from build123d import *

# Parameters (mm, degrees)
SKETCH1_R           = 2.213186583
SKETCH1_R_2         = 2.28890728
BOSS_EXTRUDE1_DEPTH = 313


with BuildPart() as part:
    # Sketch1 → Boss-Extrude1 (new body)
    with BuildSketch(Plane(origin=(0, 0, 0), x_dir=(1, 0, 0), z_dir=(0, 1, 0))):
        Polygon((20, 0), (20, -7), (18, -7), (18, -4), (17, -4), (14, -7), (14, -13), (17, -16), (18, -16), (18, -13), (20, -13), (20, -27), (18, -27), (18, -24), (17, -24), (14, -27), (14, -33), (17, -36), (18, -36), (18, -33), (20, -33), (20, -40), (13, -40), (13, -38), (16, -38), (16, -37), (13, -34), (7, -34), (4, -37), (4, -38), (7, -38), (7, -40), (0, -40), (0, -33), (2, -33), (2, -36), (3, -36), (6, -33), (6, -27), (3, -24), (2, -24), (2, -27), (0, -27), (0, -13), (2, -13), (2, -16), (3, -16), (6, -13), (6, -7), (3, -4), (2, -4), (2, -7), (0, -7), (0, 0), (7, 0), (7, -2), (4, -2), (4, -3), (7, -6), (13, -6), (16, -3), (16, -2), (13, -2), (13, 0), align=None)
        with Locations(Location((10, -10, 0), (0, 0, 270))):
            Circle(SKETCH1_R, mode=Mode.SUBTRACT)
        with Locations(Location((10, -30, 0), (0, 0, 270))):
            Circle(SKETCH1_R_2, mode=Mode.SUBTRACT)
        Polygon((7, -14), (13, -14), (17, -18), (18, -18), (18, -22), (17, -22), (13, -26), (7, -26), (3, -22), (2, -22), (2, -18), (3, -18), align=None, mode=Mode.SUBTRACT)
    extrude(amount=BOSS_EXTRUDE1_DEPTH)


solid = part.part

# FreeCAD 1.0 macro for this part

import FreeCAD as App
import Part
import Sketcher
from FreeCAD import Vector

doc = App.newDocument("Part")
body = doc.addObject("PartDesign::Body", "Body")

sketch1 = body.newObject("Sketcher::SketchObject", "Sketch")
sketch1.AttachmentSupport = (doc.getObject("XZ_Plane"), [""])
sketch1.MapMode = "FlatFace"
sketch1.addGeometry(Part.LineSegment(Vector(20, 7, 0), Vector(20, 0, 0)), False)
sketch1.addGeometry(Part.LineSegment(Vector(20, 0, 0), Vector(13, 0, 0)), False)
sketch1.addGeometry(Part.LineSegment(Vector(13, 0, 0), Vector(13, 2, 0)), False)
sketch1.addGeometry(Part.LineSegment(Vector(13, 2, 0), Vector(16, 2, 0)), False)
sketch1.addGeometry(Part.LineSegment(Vector(16, 2, 0), Vector(16, 3, 0)), False)
sketch1.addGeometry(Part.LineSegment(Vector(16, 3, 0), Vector(13, 6, 0)), False)
sketch1.addGeometry(Part.LineSegment(Vector(13, 6, 0), Vector(7, 6, 0)), False)
sketch1.addGeometry(Part.LineSegment(Vector(7, 6, 0), Vector(4, 3, 0)), False)
sketch1.addGeometry(Part.LineSegment(Vector(4, 3, 0), Vector(4, 2, 0)), False)
sketch1.addGeometry(Part.LineSegment(Vector(4, 2, 0), Vector(7, 2, 0)), False)
sketch1.addGeometry(Part.LineSegment(Vector(7, 2, 0), Vector(7, 0, 0)), False)
sketch1.addGeometry(Part.LineSegment(Vector(7, 0, 0), Vector(0, 0, 0)), False)
sketch1.addGeometry(Part.LineSegment(Vector(0, 0, 0), Vector(0, 7, 0)), False)
sketch1.addGeometry(Part.LineSegment(Vector(0, 7, 0), Vector(2, 7, 0)), False)
sketch1.addGeometry(Part.LineSegment(Vector(2, 7, 0), Vector(2, 4, 0)), False)
sketch1.addGeometry(Part.LineSegment(Vector(2, 4, 0), Vector(3, 4, 0)), False)
sketch1.addGeometry(Part.LineSegment(Vector(3, 4, 0), Vector(6, 7, 0)), False)
sketch1.addGeometry(Part.LineSegment(Vector(6, 7, 0), Vector(6, 13, 0)), False)
sketch1.addGeometry(Part.LineSegment(Vector(6, 13, 0), Vector(3, 16, 0)), False)
sketch1.addGeometry(Part.LineSegment(Vector(3, 16, 0), Vector(2, 16, 0)), False)
sketch1.addGeometry(Part.LineSegment(Vector(2, 16, 0), Vector(2, 13, 0)), False)
sketch1.addGeometry(Part.LineSegment(Vector(2, 13, 0), Vector(0, 13, 0)), False)
sketch1.addGeometry(Part.LineSegment(Vector(0, 13, 0), Vector(0, 27, 0)), False)
sketch1.addGeometry(Part.LineSegment(Vector(0, 27, 0), Vector(2, 27, 0)), False)
sketch1.addGeometry(Part.LineSegment(Vector(2, 27, 0), Vector(2, 24, 0)), False)
sketch1.addGeometry(Part.LineSegment(Vector(2, 24, 0), Vector(3, 24, 0)), False)
sketch1.addGeometry(Part.LineSegment(Vector(3, 24, 0), Vector(6, 27, 0)), False)
sketch1.addGeometry(Part.LineSegment(Vector(6, 27, 0), Vector(6, 33, 0)), False)
sketch1.addGeometry(Part.LineSegment(Vector(6, 33, 0), Vector(3, 36, 0)), False)
sketch1.addGeometry(Part.LineSegment(Vector(3, 36, 0), Vector(2, 36, 0)), False)
sketch1.addGeometry(Part.LineSegment(Vector(2, 36, 0), Vector(2, 33, 0)), False)
sketch1.addGeometry(Part.LineSegment(Vector(2, 33, 0), Vector(0, 33, 0)), False)
sketch1.addGeometry(Part.LineSegment(Vector(0, 33, 0), Vector(0, 40, 0)), False)
sketch1.addGeometry(Part.LineSegment(Vector(0, 40, 0), Vector(7, 40, 0)), False)
sketch1.addGeometry(Part.LineSegment(Vector(7, 40, 0), Vector(7, 38, 0)), False)
sketch1.addGeometry(Part.LineSegment(Vector(7, 38, 0), Vector(4, 38, 0)), False)
sketch1.addGeometry(Part.LineSegment(Vector(4, 38, 0), Vector(4, 37, 0)), False)
sketch1.addGeometry(Part.LineSegment(Vector(4, 37, 0), Vector(7, 34, 0)), False)
sketch1.addGeometry(Part.LineSegment(Vector(7, 34, 0), Vector(13, 34, 0)), False)
sketch1.addGeometry(Part.LineSegment(Vector(13, 34, 0), Vector(16, 37, 0)), False)
sketch1.addGeometry(Part.LineSegment(Vector(16, 37, 0), Vector(16, 38, 0)), False)
sketch1.addGeometry(Part.LineSegment(Vector(16, 38, 0), Vector(13, 38, 0)), False)
sketch1.addGeometry(Part.LineSegment(Vector(13, 38, 0), Vector(13, 40, 0)), False)
sketch1.addGeometry(Part.LineSegment(Vector(13, 40, 0), Vector(20, 40, 0)), False)
sketch1.addGeometry(Part.LineSegment(Vector(20, 40, 0), Vector(20, 33, 0)), False)
sketch1.addGeometry(Part.LineSegment(Vector(20, 33, 0), Vector(18, 33, 0)), False)
sketch1.addGeometry(Part.LineSegment(Vector(18, 33, 0), Vector(18, 36, 0)), False)
sketch1.addGeometry(Part.LineSegment(Vector(18, 36, 0), Vector(17, 36, 0)), False)
sketch1.addGeometry(Part.LineSegment(Vector(17, 36, 0), Vector(14, 33, 0)), False)
sketch1.addGeometry(Part.LineSegment(Vector(14, 33, 0), Vector(14, 27, 0)), False)
sketch1.addGeometry(Part.LineSegment(Vector(14, 27, 0), Vector(17, 24, 0)), False)
sketch1.addGeometry(Part.LineSegment(Vector(17, 24, 0), Vector(18, 24, 0)), False)
sketch1.addGeometry(Part.LineSegment(Vector(18, 24, 0), Vector(18, 27, 0)), False)
sketch1.addGeometry(Part.LineSegment(Vector(18, 27, 0), Vector(20, 27, 0)), False)
sketch1.addGeometry(Part.LineSegment(Vector(20, 27, 0), Vector(20, 13, 0)), False)
sketch1.addGeometry(Part.LineSegment(Vector(20, 13, 0), Vector(18, 13, 0)), False)
sketch1.addGeometry(Part.LineSegment(Vector(18, 13, 0), Vector(18, 16, 0)), False)
sketch1.addGeometry(Part.LineSegment(Vector(18, 16, 0), Vector(17, 16, 0)), False)
sketch1.addGeometry(Part.LineSegment(Vector(17, 16, 0), Vector(14, 13, 0)), False)
sketch1.addGeometry(Part.LineSegment(Vector(14, 13, 0), Vector(14, 7, 0)), False)
sketch1.addGeometry(Part.LineSegment(Vector(14, 7, 0), Vector(17, 4, 0)), False)
sketch1.addGeometry(Part.LineSegment(Vector(17, 4, 0), Vector(18, 4, 0)), False)
sketch1.addGeometry(Part.LineSegment(Vector(18, 4, 0), Vector(18, 7, 0)), False)
sketch1.addGeometry(Part.LineSegment(Vector(18, 7, 0), Vector(20, 7, 0)), False)
sketch1.addGeometry(Part.Circle(Vector(10, 30, 0), Vector(0, 0, 1), 2.3), False)
sketch1.addGeometry(Part.LineSegment(Vector(7, 14, 0), Vector(13, 14, 0)), False)
sketch1.addGeometry(Part.LineSegment(Vector(13, 14, 0), Vector(17, 18, 0)), False)
sketch1.addGeometry(Part.LineSegment(Vector(17, 18, 0), Vector(18, 18, 0)), False)
sketch1.addGeometry(Part.LineSegment(Vector(18, 18, 0), Vector(18, 22, 0)), False)
sketch1.addGeometry(Part.LineSegment(Vector(18, 22, 0), Vector(17, 22, 0)), False)
sketch1.addGeometry(Part.LineSegment(Vector(17, 22, 0), Vector(13, 26, 0)), False)
sketch1.addGeometry(Part.LineSegment(Vector(13, 26, 0), Vector(7, 26, 0)), False)
sketch1.addGeometry(Part.LineSegment(Vector(7, 26, 0), Vector(3, 22, 0)), False)
sketch1.addGeometry(Part.LineSegment(Vector(3, 22, 0), Vector(2, 22, 0)), False)
sketch1.addGeometry(Part.LineSegment(Vector(2, 22, 0), Vector(2, 18, 0)), False)
sketch1.addGeometry(Part.LineSegment(Vector(2, 18, 0), Vector(3, 18, 0)), False)
sketch1.addGeometry(Part.LineSegment(Vector(3, 18, 0), Vector(7, 14, 0)), False)
sketch1.addGeometry(Part.Circle(Vector(10, 10, 0), Vector(0, 0, 1), 2.2), False)
sketch1.addConstraint(Sketcher.Constraint("Coincident", 0, 2, 1, 1))
sketch1.addConstraint(Sketcher.Constraint("Coincident", 1, 2, 2, 1))
sketch1.addConstraint(Sketcher.Constraint("Coincident", 2, 2, 3, 1))
sketch1.addConstraint(Sketcher.Constraint("Coincident", 3, 2, 4, 1))
sketch1.addConstraint(Sketcher.Constraint("Coincident", 4, 2, 5, 1))
sketch1.addConstraint(Sketcher.Constraint("Coincident", 5, 2, 6, 1))
sketch1.addConstraint(Sketcher.Constraint("Coincident", 6, 2, 7, 1))
sketch1.addConstraint(Sketcher.Constraint("Coincident", 7, 2, 8, 1))
sketch1.addConstraint(Sketcher.Constraint("Coincident", 8, 2, 9, 1))
sketch1.addConstraint(Sketcher.Constraint("Coincident", 9, 2, 10, 1))
sketch1.addConstraint(Sketcher.Constraint("Coincident", 10, 2, 11, 1))
sketch1.addConstraint(Sketcher.Constraint("Coincident", 11, 2, 12, 1))
sketch1.addConstraint(Sketcher.Constraint("Coincident", 12, 2, 13, 1))
sketch1.addConstraint(Sketcher.Constraint("Coincident", 13, 2, 14, 1))
sketch1.addConstraint(Sketcher.Constraint("Coincident", 14, 2, 15, 1))
sketch1.addConstraint(Sketcher.Constraint("Coincident", 15, 2, 16, 1))
sketch1.addConstraint(Sketcher.Constraint("Coincident", 16, 2, 17, 1))
sketch1.addConstraint(Sketcher.Constraint("Coincident", 17, 2, 18, 1))
sketch1.addConstraint(Sketcher.Constraint("Coincident", 18, 2, 19, 1))
sketch1.addConstraint(Sketcher.Constraint("Coincident", 19, 2, 20, 1))
sketch1.addConstraint(Sketcher.Constraint("Coincident", 20, 2, 21, 1))
sketch1.addConstraint(Sketcher.Constraint("Coincident", 21, 2, 22, 1))
sketch1.addConstraint(Sketcher.Constraint("Coincident", 22, 2, 23, 1))
sketch1.addConstraint(Sketcher.Constraint("Coincident", 23, 2, 24, 1))
sketch1.addConstraint(Sketcher.Constraint("Coincident", 24, 2, 25, 1))
sketch1.addConstraint(Sketcher.Constraint("Coincident", 25, 2, 26, 1))
sketch1.addConstraint(Sketcher.Constraint("Coincident", 26, 2, 27, 1))
sketch1.addConstraint(Sketcher.Constraint("Coincident", 27, 2, 28, 1))
sketch1.addConstraint(Sketcher.Constraint("Coincident", 28, 2, 29, 1))
sketch1.addConstraint(Sketcher.Constraint("Coincident", 29, 2, 30, 1))
sketch1.addConstraint(Sketcher.Constraint("Coincident", 30, 2, 31, 1))
sketch1.addConstraint(Sketcher.Constraint("Coincident", 31, 2, 32, 1))
sketch1.addConstraint(Sketcher.Constraint("Coincident", 32, 2, 33, 1))
sketch1.addConstraint(Sketcher.Constraint("Coincident", 33, 2, 34, 1))
sketch1.addConstraint(Sketcher.Constraint("Coincident", 34, 2, 35, 1))
sketch1.addConstraint(Sketcher.Constraint("Coincident", 35, 2, 36, 1))
sketch1.addConstraint(Sketcher.Constraint("Coincident", 36, 2, 37, 1))
sketch1.addConstraint(Sketcher.Constraint("Coincident", 37, 2, 38, 1))
sketch1.addConstraint(Sketcher.Constraint("Coincident", 38, 2, 39, 1))
sketch1.addConstraint(Sketcher.Constraint("Coincident", 39, 2, 40, 1))
sketch1.addConstraint(Sketcher.Constraint("Coincident", 40, 2, 41, 1))
sketch1.addConstraint(Sketcher.Constraint("Coincident", 41, 2, 42, 1))
sketch1.addConstraint(Sketcher.Constraint("Coincident", 42, 2, 43, 1))
sketch1.addConstraint(Sketcher.Constraint("Coincident", 43, 2, 44, 1))
sketch1.addConstraint(Sketcher.Constraint("Coincident", 44, 2, 45, 1))
sketch1.addConstraint(Sketcher.Constraint("Coincident", 45, 2, 46, 1))
sketch1.addConstraint(Sketcher.Constraint("Coincident", 46, 2, 47, 1))
sketch1.addConstraint(Sketcher.Constraint("Coincident", 47, 2, 48, 1))
sketch1.addConstraint(Sketcher.Constraint("Coincident", 48, 2, 49, 1))
sketch1.addConstraint(Sketcher.Constraint("Coincident", 49, 2, 50, 1))
sketch1.addConstraint(Sketcher.Constraint("Coincident", 50, 2, 51, 1))
sketch1.addConstraint(Sketcher.Constraint("Coincident", 51, 2, 52, 1))
sketch1.addConstraint(Sketcher.Constraint("Coincident", 52, 2, 53, 1))
sketch1.addConstraint(Sketcher.Constraint("Coincident", 53, 2, 54, 1))
sketch1.addConstraint(Sketcher.Constraint("Coincident", 54, 2, 55, 1))
sketch1.addConstraint(Sketcher.Constraint("Coincident", 55, 2, 56, 1))
sketch1.addConstraint(Sketcher.Constraint("Coincident", 56, 2, 57, 1))
sketch1.addConstraint(Sketcher.Constraint("Coincident", 57, 2, 58, 1))
sketch1.addConstraint(Sketcher.Constraint("Coincident", 58, 2, 59, 1))
sketch1.addConstraint(Sketcher.Constraint("Coincident", 59, 2, 60, 1))
sketch1.addConstraint(Sketcher.Constraint("Coincident", 60, 2, 61, 1))
sketch1.addConstraint(Sketcher.Constraint("Coincident", 61, 2, 62, 1))
sketch1.addConstraint(Sketcher.Constraint("Coincident", 62, 2, 63, 1))
sketch1.addConstraint(Sketcher.Constraint("Coincident", 63, 2, 0, 1))
sketch1.addConstraint(Sketcher.Constraint("Coincident", 65, 2, 66, 1))
sketch1.addConstraint(Sketcher.Constraint("Coincident", 66, 2, 67, 1))
sketch1.addConstraint(Sketcher.Constraint("Coincident", 67, 2, 68, 1))
sketch1.addConstraint(Sketcher.Constraint("Coincident", 68, 2, 69, 1))
sketch1.addConstraint(Sketcher.Constraint("Coincident", 69, 2, 70, 1))
sketch1.addConstraint(Sketcher.Constraint("Coincident", 70, 2, 71, 1))
sketch1.addConstraint(Sketcher.Constraint("Coincident", 71, 2, 72, 1))
sketch1.addConstraint(Sketcher.Constraint("Coincident", 72, 2, 73, 1))
sketch1.addConstraint(Sketcher.Constraint("Coincident", 73, 2, 74, 1))
sketch1.addConstraint(Sketcher.Constraint("Coincident", 74, 2, 75, 1))
sketch1.addConstraint(Sketcher.Constraint("Coincident", 75, 2, 76, 1))
sketch1.addConstraint(Sketcher.Constraint("Coincident", 76, 2, 65, 1))
sketch1.addConstraint(Sketcher.Constraint("Vertical", 0))
sketch1.addConstraint(Sketcher.Constraint("Horizontal", 1))
sketch1.addConstraint(Sketcher.Constraint("Vertical", 2))
sketch1.addConstraint(Sketcher.Constraint("Horizontal", 3))
sketch1.addConstraint(Sketcher.Constraint("Vertical", 4))
sketch1.addConstraint(Sketcher.Constraint("Horizontal", 6))
sketch1.addConstraint(Sketcher.Constraint("Vertical", 8))
sketch1.addConstraint(Sketcher.Constraint("Horizontal", 9))
sketch1.addConstraint(Sketcher.Constraint("Vertical", 10))
sketch1.addConstraint(Sketcher.Constraint("Horizontal", 11))
sketch1.addConstraint(Sketcher.Constraint("Vertical", 12))
sketch1.addConstraint(Sketcher.Constraint("Horizontal", 13))
sketch1.addConstraint(Sketcher.Constraint("Vertical", 14))
sketch1.addConstraint(Sketcher.Constraint("Horizontal", 15))
sketch1.addConstraint(Sketcher.Constraint("Vertical", 17))
sketch1.addConstraint(Sketcher.Constraint("Horizontal", 19))
sketch1.addConstraint(Sketcher.Constraint("Vertical", 20))
sketch1.addConstraint(Sketcher.Constraint("Horizontal", 21))
sketch1.addConstraint(Sketcher.Constraint("Vertical", 22))
sketch1.addConstraint(Sketcher.Constraint("Horizontal", 23))
sketch1.addConstraint(Sketcher.Constraint("Vertical", 24))
sketch1.addConstraint(Sketcher.Constraint("Horizontal", 25))
sketch1.addConstraint(Sketcher.Constraint("Vertical", 27))
sketch1.addConstraint(Sketcher.Constraint("Horizontal", 29))
sketch1.addConstraint(Sketcher.Constraint("Vertical", 30))
sketch1.addConstraint(Sketcher.Constraint("Horizontal", 31))
sketch1.addConstraint(Sketcher.Constraint("Vertical", 32))
sketch1.addConstraint(Sketcher.Constraint("Horizontal", 33))
sketch1.addConstraint(Sketcher.Constraint("Vertical", 34))
sketch1.addConstraint(Sketcher.Constraint("Horizontal", 35))
sketch1.addConstraint(Sketcher.Constraint("Vertical", 36))
sketch1.addConstraint(Sketcher.Constraint("Horizontal", 38))
sketch1.addConstraint(Sketcher.Constraint("Vertical", 40))
sketch1.addConstraint(Sketcher.Constraint("Horizontal", 41))
sketch1.addConstraint(Sketcher.Constraint("Vertical", 42))
sketch1.addConstraint(Sketcher.Constraint("Horizontal", 43))
sketch1.addConstraint(Sketcher.Constraint("Vertical", 44))
sketch1.addConstraint(Sketcher.Constraint("Horizontal", 45))
sketch1.addConstraint(Sketcher.Constraint("Vertical", 46))
sketch1.addConstraint(Sketcher.Constraint("Horizontal", 47))
sketch1.addConstraint(Sketcher.Constraint("Vertical", 49))
sketch1.addConstraint(Sketcher.Constraint("Horizontal", 51))
sketch1.addConstraint(Sketcher.Constraint("Vertical", 52))
sketch1.addConstraint(Sketcher.Constraint("Horizontal", 53))
sketch1.addConstraint(Sketcher.Constraint("Vertical", 54))
sketch1.addConstraint(Sketcher.Constraint("Horizontal", 55))
sketch1.addConstraint(Sketcher.Constraint("Vertical", 56))
sketch1.addConstraint(Sketcher.Constraint("Horizontal", 57))
sketch1.addConstraint(Sketcher.Constraint("Vertical", 59))
sketch1.addConstraint(Sketcher.Constraint("Horizontal", 61))
sketch1.addConstraint(Sketcher.Constraint("Vertical", 62))
sketch1.addConstraint(Sketcher.Constraint("Horizontal", 63))
sketch1.addConstraint(Sketcher.Constraint("Horizontal", 65))
sketch1.addConstraint(Sketcher.Constraint("Horizontal", 67))
sketch1.addConstraint(Sketcher.Constraint("Vertical", 68))
sketch1.addConstraint(Sketcher.Constraint("Horizontal", 69))
sketch1.addConstraint(Sketcher.Constraint("Horizontal", 71))
sketch1.addConstraint(Sketcher.Constraint("Horizontal", 73))
sketch1.addConstraint(Sketcher.Constraint("Vertical", 74))
sketch1.addConstraint(Sketcher.Constraint("Horizontal", 75))
sketch1.addConstraint(Sketcher.Constraint("Coincident", 11, 2, -1, 1))
sketch1.addConstraint(Sketcher.Constraint("PointOnObject", 0, 2, -1))
sketch1.addConstraint(Sketcher.Constraint("PointOnObject", 21, 2, -2))
sketch1.addConstraint(Sketcher.Constraint("PointOnObject", 31, 2, -2))
sketch1.addConstraint(Sketcher.Constraint("Perpendicular", 5, 7))
sketch1.addConstraint(Sketcher.Constraint("Parallel", 7, 16))
sketch1.addConstraint(Sketcher.Constraint("Perpendicular", 16, 18))
sketch1.addConstraint(Sketcher.Constraint("Perpendicular", 18, 26))
sketch1.addConstraint(Sketcher.Constraint("Perpendicular", 26, 28))
sketch1.addConstraint(Sketcher.Constraint("Parallel", 28, 37))
sketch1.addConstraint(Sketcher.Constraint("Perpendicular", 37, 39))
sketch1.addConstraint(Sketcher.Constraint("Parallel", 39, 48))
sketch1.addConstraint(Sketcher.Constraint("Perpendicular", 48, 50))
sketch1.addConstraint(Sketcher.Constraint("Perpendicular", 50, 58))
sketch1.addConstraint(Sketcher.Constraint("Perpendicular", 58, 60))
sketch1.addConstraint(Sketcher.Constraint("Perpendicular", 60, 66))
sketch1.addConstraint(Sketcher.Constraint("Perpendicular", 66, 70))
sketch1.addConstraint(Sketcher.Constraint("Perpendicular", 70, 72))
sketch1.addConstraint(Sketcher.Constraint("Perpendicular", 72, 76))
sketch1.addConstraint(Sketcher.Constraint("Horizontal", 4, 2, 7, 2))
sketch1.addConstraint(Sketcher.Constraint("Horizontal", 3, 2, 8, 2))
sketch1.addConstraint(Sketcher.Constraint("Horizontal", 13, 2, 16, 2))
sketch1.addConstraint(Sketcher.Constraint("Horizontal", 17, 2, 20, 2))
sketch1.addConstraint(Sketcher.Constraint("Horizontal", 23, 2, 26, 2))
sketch1.addConstraint(Sketcher.Constraint("Horizontal", 27, 2, 30, 2))
sketch1.addConstraint(Sketcher.Constraint("Horizontal", 36, 2, 39, 2))
sketch1.addConstraint(Sketcher.Constraint("Horizontal", 35, 2, 40, 2))
sketch1.addConstraint(Sketcher.Constraint("Horizontal", 33, 2, 42, 2))
sketch1.addConstraint(Sketcher.Constraint("Horizontal", 31, 2, 44, 2))
sketch1.addConstraint(Sketcher.Constraint("Horizontal", 29, 2, 46, 2))
sketch1.addConstraint(Sketcher.Constraint("Horizontal", 45, 2, 48, 2))
sketch1.addConstraint(Sketcher.Constraint("Horizontal", 26, 2, 49, 2))
sketch1.addConstraint(Sketcher.Constraint("Horizontal", 25, 2, 50, 2))
sketch1.addConstraint(Sketcher.Constraint("Horizontal", 49, 2, 52, 2))
sketch1.addConstraint(Sketcher.Constraint("Horizontal", 21, 2, 54, 2))
sketch1.addConstraint(Sketcher.Constraint("Horizontal", 19, 2, 56, 2))
sketch1.addConstraint(Sketcher.Constraint("Horizontal", 55, 2, 58, 2))
sketch1.addConstraint(Sketcher.Constraint("Horizontal", 16, 2, 59, 2))
sketch1.addConstraint(Sketcher.Constraint("Horizontal", 15, 2, 60, 2))
sketch1.addConstraint(Sketcher.Constraint("Horizontal", 59, 2, 62, 2))
sketch1.addConstraint(Sketcher.Constraint("Horizontal", 69, 2, 72, 2))
sketch1.addConstraint(Sketcher.Constraint("Horizontal", 67, 2, 74, 2))
sketch1.addConstraint(Sketcher.Constraint("Vertical", 64, 3, 77, 3))
sketch1.addConstraint(Sketcher.Constraint("Vertical", 2, 2, 5, 2))
sketch1.addConstraint(Sketcher.Constraint("Vertical", 6, 2, 9, 2))
sketch1.addConstraint(Sketcher.Constraint("Vertical", 15, 2, 18, 2))
sketch1.addConstraint(Sketcher.Constraint("Vertical", 14, 2, 19, 2))
sketch1.addConstraint(Sketcher.Constraint("Vertical", 20, 2, 23, 2))
sketch1.addConstraint(Sketcher.Constraint("Vertical", 18, 2, 25, 2))
sketch1.addConstraint(Sketcher.Constraint("Vertical", 17, 2, 26, 2))
sketch1.addConstraint(Sketcher.Constraint("Vertical", 25, 2, 28, 2))
sketch1.addConstraint(Sketcher.Constraint("Vertical", 24, 2, 29, 2))
sketch1.addConstraint(Sketcher.Constraint("Vertical", 10, 2, 33, 2))
sketch1.addConstraint(Sketcher.Constraint("Vertical", 8, 2, 35, 2))
sketch1.addConstraint(Sketcher.Constraint("Vertical", 34, 2, 37, 2))
sketch1.addConstraint(Sketcher.Constraint("Vertical", 5, 2, 38, 2))
sketch1.addConstraint(Sketcher.Constraint("Vertical", 4, 2, 39, 2))
sketch1.addConstraint(Sketcher.Constraint("Vertical", 38, 2, 41, 2))
sketch1.addConstraint(Sketcher.Constraint("Vertical", 0, 2, 43, 2))
sketch1.addConstraint(Sketcher.Constraint("Vertical", 46, 2, 51, 2))
sketch1.addConstraint(Sketcher.Constraint("Vertical", 44, 2, 53, 2))
sketch1.addConstraint(Sketcher.Constraint("Vertical", 52, 2, 55, 2))
sketch1.addConstraint(Sketcher.Constraint("Vertical", 50, 2, 57, 2))
sketch1.addConstraint(Sketcher.Constraint("Vertical", 56, 2, 61, 2))
sketch1.addConstraint(Sketcher.Constraint("Vertical", 42, 2, 65, 2))
sketch1.addConstraint(Sketcher.Constraint("Vertical", 60, 2, 66, 2))
sketch1.addConstraint(Sketcher.Constraint("Vertical", 62, 2, 67, 2))
sketch1.addConstraint(Sketcher.Constraint("Vertical", 66, 2, 69, 2))
sketch1.addConstraint(Sketcher.Constraint("Vertical", 65, 2, 70, 2))
sketch1.addConstraint(Sketcher.Constraint("Vertical", 37, 2, 71, 2))
sketch1.addConstraint(Sketcher.Constraint("Vertical", 28, 2, 72, 2))
sketch1.addConstraint(Sketcher.Constraint("Vertical", 30, 2, 73, 2))
sketch1.addConstraint(Sketcher.Constraint("Vertical", 72, 2, 75, 2))
sketch1.addConstraint(Sketcher.Constraint("Equal", 1, 11))
sketch1.addConstraint(Sketcher.Constraint("Equal", 31, 45))
sketch1.addConstraint(Sketcher.Constraint("Equal", 43, 0))
sketch1.addConstraint(Sketcher.Constraint("Equal", 63, 2))
sketch1.addConstraint(Sketcher.Constraint("Equal", 75, 4))
sketch1.addConstraint(Sketcher.Constraint("Equal", 41, 14))
sketch1.addConstraint(Sketcher.Constraint("Equal", 71, 17))
sketch1.addConstraint(Sketcher.Constraint("Equal", 17, 27))
sketch1.addConstraint(Sketcher.Constraint("Equal", 12, 32))
sketch1.addConstraint(Sketcher.Constraint("Equal", 10, 34))
sketch1.addConstraint(Sketcher.Constraint("Equal", 8, 36))
sketch1.addConstraint(Sketcher.Constraint("DistanceX", 1, 2, 1, 1, 7.0))
sketch1.addConstraint(Sketcher.Constraint("DistanceX", 3, 1, 3, 2, 3.0))
sketch1.addConstraint(Sketcher.Constraint("DistanceX", 6, 2, 6, 1, 6.0))
sketch1.addConstraint(Sketcher.Constraint("DistanceX", 13, 1, 13, 2, 2.0))
sketch1.addConstraint(Sketcher.Constraint("DistanceX", 15, 1, 15, 2, 1.0))
sketch1.addConstraint(Sketcher.Constraint("DistanceY", 22, 1, 22, 2, 14.0))
sketch1.addConstraint(Sketcher.Constraint("DistanceY", 68, 1, 68, 2, 4.0))
sketch1.addConstraint(Sketcher.Constraint("DistanceX", -1, 1, 64, 3, 10.0))
sketch1.addConstraint(Sketcher.Constraint("DistanceY", -1, 1, 64, 3, 30.0))
sketch1.addConstraint(Sketcher.Constraint("DistanceY", -1, 1, 77, 3, 10.0))
sketch1.addConstraint(Sketcher.Constraint("DistanceY", -1, 1, 65, 2, 14.0))
sketch1.addConstraint(Sketcher.Constraint("Diameter", 64, 4.577815))
sketch1.addConstraint(Sketcher.Constraint("Diameter", 77, 4.426373))
pad1 = body.newObject("PartDesign::Pad", "Pad")
pad1.Profile = sketch1
pad1.Length = 313
pad1.Reversed = True

doc.recompute()
